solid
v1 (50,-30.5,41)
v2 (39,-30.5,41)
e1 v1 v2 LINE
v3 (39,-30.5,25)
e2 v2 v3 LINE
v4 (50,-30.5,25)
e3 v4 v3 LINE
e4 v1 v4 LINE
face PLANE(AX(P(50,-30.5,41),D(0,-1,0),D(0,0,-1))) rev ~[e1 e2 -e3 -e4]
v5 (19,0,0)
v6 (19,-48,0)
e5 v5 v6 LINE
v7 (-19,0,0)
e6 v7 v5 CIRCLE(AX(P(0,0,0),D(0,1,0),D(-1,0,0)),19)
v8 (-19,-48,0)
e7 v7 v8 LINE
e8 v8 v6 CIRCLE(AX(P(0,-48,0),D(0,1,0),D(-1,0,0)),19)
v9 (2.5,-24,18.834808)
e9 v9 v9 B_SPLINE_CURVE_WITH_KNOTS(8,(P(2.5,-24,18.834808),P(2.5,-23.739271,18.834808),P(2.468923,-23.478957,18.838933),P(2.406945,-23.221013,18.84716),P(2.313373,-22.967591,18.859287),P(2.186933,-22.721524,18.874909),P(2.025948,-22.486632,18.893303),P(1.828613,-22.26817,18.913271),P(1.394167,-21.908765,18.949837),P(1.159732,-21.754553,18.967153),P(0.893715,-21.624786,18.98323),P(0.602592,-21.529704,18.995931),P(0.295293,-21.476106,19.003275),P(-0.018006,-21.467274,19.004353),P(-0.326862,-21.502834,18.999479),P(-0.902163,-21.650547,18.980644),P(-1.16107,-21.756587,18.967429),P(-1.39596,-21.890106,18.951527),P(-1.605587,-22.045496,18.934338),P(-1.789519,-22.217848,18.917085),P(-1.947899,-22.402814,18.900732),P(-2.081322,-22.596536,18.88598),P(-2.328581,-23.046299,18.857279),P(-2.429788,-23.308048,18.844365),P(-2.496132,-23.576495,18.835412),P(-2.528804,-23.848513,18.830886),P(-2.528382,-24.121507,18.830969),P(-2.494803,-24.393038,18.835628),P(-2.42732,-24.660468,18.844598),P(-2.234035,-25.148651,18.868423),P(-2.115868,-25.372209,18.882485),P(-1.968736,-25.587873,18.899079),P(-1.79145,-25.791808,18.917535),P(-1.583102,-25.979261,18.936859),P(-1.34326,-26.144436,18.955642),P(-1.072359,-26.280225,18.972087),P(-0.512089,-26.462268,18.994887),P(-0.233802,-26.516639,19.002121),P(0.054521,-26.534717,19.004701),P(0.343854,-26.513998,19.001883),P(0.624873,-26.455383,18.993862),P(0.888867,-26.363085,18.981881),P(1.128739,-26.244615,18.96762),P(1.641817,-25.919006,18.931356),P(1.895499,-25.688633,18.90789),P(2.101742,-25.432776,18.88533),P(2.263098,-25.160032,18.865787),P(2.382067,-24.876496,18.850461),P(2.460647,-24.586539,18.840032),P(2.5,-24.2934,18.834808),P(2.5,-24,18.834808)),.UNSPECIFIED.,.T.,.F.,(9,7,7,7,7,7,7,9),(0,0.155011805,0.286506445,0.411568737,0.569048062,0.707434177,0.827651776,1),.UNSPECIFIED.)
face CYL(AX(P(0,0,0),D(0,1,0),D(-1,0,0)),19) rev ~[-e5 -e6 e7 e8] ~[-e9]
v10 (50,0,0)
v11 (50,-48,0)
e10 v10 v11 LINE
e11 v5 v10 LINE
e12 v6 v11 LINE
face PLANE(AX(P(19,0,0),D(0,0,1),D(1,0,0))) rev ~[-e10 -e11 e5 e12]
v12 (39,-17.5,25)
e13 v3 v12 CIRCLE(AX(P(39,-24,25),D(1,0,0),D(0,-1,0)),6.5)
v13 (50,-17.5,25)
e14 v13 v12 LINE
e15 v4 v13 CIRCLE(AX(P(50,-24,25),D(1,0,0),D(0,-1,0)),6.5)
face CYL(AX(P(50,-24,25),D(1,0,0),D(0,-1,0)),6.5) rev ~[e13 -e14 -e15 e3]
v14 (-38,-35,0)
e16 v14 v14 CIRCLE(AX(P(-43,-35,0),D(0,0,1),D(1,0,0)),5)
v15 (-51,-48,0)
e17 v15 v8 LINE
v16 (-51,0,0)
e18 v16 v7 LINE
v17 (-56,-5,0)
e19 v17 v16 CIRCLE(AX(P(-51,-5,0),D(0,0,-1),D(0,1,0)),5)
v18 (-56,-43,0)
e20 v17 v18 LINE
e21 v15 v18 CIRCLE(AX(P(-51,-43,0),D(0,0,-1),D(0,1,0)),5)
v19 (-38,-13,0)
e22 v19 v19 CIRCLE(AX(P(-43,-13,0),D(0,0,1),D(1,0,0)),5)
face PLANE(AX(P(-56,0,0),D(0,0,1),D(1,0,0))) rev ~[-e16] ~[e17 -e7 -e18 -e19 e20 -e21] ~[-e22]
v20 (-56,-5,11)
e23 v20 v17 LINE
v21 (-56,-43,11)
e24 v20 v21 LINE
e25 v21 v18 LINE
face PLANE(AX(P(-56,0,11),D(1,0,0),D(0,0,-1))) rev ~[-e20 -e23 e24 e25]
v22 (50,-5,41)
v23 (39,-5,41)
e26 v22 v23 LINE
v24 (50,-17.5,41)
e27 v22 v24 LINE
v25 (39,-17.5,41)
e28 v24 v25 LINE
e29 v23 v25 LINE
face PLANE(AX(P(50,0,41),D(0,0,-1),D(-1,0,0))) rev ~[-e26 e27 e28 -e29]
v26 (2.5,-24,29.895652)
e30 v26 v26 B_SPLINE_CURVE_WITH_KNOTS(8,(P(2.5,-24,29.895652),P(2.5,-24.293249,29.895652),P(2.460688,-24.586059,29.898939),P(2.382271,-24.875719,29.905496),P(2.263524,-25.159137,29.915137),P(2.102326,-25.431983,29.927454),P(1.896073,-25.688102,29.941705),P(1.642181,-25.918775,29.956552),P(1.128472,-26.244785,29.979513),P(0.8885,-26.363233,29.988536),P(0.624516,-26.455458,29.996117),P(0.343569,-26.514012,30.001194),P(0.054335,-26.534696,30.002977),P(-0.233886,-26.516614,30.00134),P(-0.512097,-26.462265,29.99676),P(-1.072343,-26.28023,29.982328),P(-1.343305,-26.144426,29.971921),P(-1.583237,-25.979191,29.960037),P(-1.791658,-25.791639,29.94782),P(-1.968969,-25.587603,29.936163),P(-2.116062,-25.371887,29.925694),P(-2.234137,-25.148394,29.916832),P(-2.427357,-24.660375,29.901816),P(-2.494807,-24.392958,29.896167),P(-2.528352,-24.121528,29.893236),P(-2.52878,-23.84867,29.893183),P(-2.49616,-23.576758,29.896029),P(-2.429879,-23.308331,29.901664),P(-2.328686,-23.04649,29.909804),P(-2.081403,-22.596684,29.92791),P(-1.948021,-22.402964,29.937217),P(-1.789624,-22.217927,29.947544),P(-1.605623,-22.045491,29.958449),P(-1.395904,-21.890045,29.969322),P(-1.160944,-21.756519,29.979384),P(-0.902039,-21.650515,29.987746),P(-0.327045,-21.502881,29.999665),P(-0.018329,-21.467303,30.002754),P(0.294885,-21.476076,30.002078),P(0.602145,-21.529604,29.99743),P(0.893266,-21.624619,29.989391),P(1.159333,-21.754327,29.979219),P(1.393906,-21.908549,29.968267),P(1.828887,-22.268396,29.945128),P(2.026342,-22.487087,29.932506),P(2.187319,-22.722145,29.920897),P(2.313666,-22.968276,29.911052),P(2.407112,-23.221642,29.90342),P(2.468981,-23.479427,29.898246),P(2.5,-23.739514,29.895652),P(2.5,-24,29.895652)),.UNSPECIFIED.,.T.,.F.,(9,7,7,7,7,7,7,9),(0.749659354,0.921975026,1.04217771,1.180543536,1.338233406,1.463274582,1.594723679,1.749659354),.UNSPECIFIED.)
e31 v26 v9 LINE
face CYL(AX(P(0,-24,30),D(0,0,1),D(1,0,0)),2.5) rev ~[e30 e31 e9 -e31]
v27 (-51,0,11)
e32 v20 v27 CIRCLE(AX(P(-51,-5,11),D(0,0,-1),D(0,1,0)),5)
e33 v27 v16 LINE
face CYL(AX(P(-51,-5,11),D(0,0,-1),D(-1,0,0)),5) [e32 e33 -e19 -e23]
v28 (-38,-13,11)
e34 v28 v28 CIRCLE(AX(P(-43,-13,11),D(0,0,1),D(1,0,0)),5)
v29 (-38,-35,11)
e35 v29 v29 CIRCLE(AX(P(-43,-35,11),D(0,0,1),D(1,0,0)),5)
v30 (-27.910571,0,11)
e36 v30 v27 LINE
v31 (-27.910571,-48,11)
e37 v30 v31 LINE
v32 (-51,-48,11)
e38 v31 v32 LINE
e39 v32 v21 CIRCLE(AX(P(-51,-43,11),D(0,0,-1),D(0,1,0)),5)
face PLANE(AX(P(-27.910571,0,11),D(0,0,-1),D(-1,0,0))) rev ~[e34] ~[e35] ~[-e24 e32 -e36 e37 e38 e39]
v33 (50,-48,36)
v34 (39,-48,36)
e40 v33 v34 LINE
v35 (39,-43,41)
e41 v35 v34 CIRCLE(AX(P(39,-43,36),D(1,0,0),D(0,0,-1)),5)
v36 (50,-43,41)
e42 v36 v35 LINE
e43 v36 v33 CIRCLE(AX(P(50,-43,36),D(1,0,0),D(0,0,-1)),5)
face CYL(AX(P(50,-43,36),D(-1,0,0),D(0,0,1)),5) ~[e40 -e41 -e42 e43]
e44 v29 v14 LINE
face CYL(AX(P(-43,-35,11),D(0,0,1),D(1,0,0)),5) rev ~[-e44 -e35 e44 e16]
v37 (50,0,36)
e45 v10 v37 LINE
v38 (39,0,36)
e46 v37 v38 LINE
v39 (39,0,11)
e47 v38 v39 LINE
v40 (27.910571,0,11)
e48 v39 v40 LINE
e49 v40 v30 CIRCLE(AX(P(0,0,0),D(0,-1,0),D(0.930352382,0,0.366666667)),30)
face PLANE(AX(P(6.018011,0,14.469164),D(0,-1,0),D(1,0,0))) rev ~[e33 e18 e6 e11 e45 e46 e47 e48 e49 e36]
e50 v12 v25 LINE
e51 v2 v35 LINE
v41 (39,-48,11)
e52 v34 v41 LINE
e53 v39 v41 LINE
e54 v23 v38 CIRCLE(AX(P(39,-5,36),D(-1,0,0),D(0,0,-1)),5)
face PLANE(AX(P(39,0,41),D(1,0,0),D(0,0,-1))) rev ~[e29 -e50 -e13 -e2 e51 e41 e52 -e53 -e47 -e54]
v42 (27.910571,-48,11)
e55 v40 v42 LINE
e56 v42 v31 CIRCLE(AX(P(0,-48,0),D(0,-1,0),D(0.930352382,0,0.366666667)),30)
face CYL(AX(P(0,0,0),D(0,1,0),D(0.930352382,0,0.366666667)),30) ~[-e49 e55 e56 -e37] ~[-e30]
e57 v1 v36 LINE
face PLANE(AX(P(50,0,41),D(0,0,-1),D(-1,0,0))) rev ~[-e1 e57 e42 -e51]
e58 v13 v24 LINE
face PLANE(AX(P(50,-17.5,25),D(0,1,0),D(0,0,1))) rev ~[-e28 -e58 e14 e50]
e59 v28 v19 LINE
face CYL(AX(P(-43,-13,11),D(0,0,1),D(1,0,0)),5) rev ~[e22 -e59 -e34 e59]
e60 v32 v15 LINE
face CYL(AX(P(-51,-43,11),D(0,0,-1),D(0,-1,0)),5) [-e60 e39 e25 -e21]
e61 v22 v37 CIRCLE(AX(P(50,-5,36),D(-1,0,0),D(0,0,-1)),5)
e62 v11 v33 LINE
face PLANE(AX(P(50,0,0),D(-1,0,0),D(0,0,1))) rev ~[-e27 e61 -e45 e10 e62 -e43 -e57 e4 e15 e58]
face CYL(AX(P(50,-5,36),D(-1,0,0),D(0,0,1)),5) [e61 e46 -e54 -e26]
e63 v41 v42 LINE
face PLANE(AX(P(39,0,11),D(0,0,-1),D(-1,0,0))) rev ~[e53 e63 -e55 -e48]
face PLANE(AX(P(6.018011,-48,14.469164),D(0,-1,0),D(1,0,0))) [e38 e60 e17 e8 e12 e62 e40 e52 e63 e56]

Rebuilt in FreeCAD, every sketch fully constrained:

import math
import FreeCAD as App
import Part
import Sketcher
from FreeCAD import Vector
Q = App.Units.Quantity


def edges_at(feature, points):
    """Names of the edges that pass closest to the given points."""
    edges = feature.Shape.Edges
    near = lambda p: min(range(len(edges)), key=lambda i: edges[i].distToShape(Part.Vertex(*p))[0])
    return sorted({f"Edge{near(p) + 1}" for p in points})

doc = App.newDocument("Part")
body = doc.addObject("PartDesign::Body", "Body")

sketch1 = doc.addObject("Sketcher::SketchObject", "Sketch")
body.addObject(sketch1)
sketch1.AttachmentSupport = (doc.XZ_Plane, [""])
sketch1.MapMode = "FlatFace"
sketch1.addGeometry([
    Part.ArcOfCircle(Part.Circle(Vector(0, 0, 0), Vector(0, 0, 1), 19), math.radians(0), math.radians(180)),
    Part.LineSegment(Vector(19, 0, 0), Vector(50, 0, 0)),
    Part.LineSegment(Vector(50, 0, 0), Vector(50, 41, 0)),
    Part.LineSegment(Vector(50, 41, 0), Vector(39, 41, 0)),
    Part.LineSegment(Vector(39, 41, 0), Vector(39, 11, 0)),
    Part.LineSegment(Vector(39, 11, 0), Vector(27.910571, 11, 0)),
    Part.ArcOfCircle(Part.Circle(Vector(0, 0, 0), Vector(0, 0, 1), 30), math.radians(21.510188), math.radians(158.489812)),
    Part.LineSegment(Vector(-27.910571, 11, 0), Vector(-56, 11, 0)),
    Part.LineSegment(Vector(-56, 11, 0), Vector(-56, 0, 0)),
    Part.LineSegment(Vector(-56, 0, 0), Vector(-19, 0, 0)),
], False)
sketch1.addConstraint([
    Sketcher.Constraint("Coincident", 0, 1, 1, 1),
    Sketcher.Constraint("Coincident", 1, 2, 2, 1),
    Sketcher.Constraint("Coincident", 2, 2, 3, 1),
    Sketcher.Constraint("Coincident", 3, 2, 4, 1),
    Sketcher.Constraint("Coincident", 4, 2, 5, 1),
    Sketcher.Constraint("Coincident", 5, 2, 6, 1),
    Sketcher.Constraint("Coincident", 6, 2, 7, 1),
    Sketcher.Constraint("Coincident", 7, 2, 8, 1),
    Sketcher.Constraint("Coincident", 8, 2, 9, 1),
    Sketcher.Constraint("Coincident", 9, 2, 0, 2),
    Sketcher.Constraint("Horizontal", 1),
    Sketcher.Constraint("Vertical", 2),
    Sketcher.Constraint("Horizontal", 3),
    Sketcher.Constraint("Vertical", 4),
    Sketcher.Constraint("Horizontal", 5),
    Sketcher.Constraint("Horizontal", 7),
    Sketcher.Constraint("Vertical", 8),
    Sketcher.Constraint("Horizontal", 9),
    Sketcher.Constraint("Coincident", 0, 3, -1, 1),
    Sketcher.Constraint("Coincident", 6, 3, -1, 1),
    Sketcher.Constraint("PointOnObject", 0, 1, -1),
    Sketcher.Constraint("PointOnObject", 8, 2, -1),
    Sketcher.Constraint("Horizontal", 5, 2, 6, 2),
    Sketcher.Constraint("Equal", 3, 8),
    Sketcher.Constraint("Radius", 0, Q("19 mm")),
    Sketcher.Constraint("Radius", 6, Q("30 mm")),
    Sketcher.Constraint("DistanceX", 1, 1, 1, 2, Q("31 mm")),
    Sketcher.Constraint("DistanceX", 3, 2, 3, 1, Q("11 mm")),
    Sketcher.Constraint("DistanceX", 9, 1, 9, 2, Q("37 mm")),
    Sketcher.Constraint("DistanceY", 2, 1, 2, 2, Q("41 mm")),
])
pad1 = doc.addObject("PartDesign::Pad", "Pad")
body.addObject(pad1)
pad1.Profile = sketch1
pad1.Length = 48
doc.recompute()

fillet = doc.addObject("PartDesign::Fillet", "Fillet")
body.addObject(fillet)
fillet.Base = (pad1, edges_at(pad1, [(44.5, -48, 41)]))
fillet.Radius = 5
doc.recompute()

fillet2 = doc.addObject("PartDesign::Fillet", "Fillet001")
body.addObject(fillet2)
fillet2.Base = (fillet, edges_at(fillet, [(44.5, 0, 41)]))
fillet2.Radius = 5

sketch2 = doc.addObject("Sketcher::SketchObject", "Sketch001")
body.addObject(sketch2)
sketch2.AttachmentSupport = (doc.YZ_Plane, [""])
sketch2.MapMode = "FlatFace"
sketch2.AttachmentOffset = App.Placement(Vector(0, 0, 50), App.Rotation())
sketch2.addGeometry([
    Part.LineSegment(Vector(-17.5, 25, 0), Vector(-17.5, 41, 0)),
    Part.LineSegment(Vector(-17.5, 41, 0), Vector(-30.5, 41, 0)),
    Part.LineSegment(Vector(-30.5, 41, 0), Vector(-30.5, 25, 0)),
    Part.ArcOfCircle(Part.Circle(Vector(-24, 25, 0), Vector(0, 0, 1), 6.5), math.radians(180), math.radians(360)),
], False)
sketch2.addConstraint([
    Sketcher.Constraint("Coincident", 0, 2, 1, 1),
    Sketcher.Constraint("Coincident", 1, 2, 2, 1),
    Sketcher.Constraint("Tangent", 2, 2, 3, 1),
    Sketcher.Constraint("Tangent", 3, 2, 0, 1),
    Sketcher.Constraint("Vertical", 0),
    Sketcher.Constraint("Horizontal", 1),
    Sketcher.Constraint("Vertical", 2),
    Sketcher.Constraint("Radius", 3, Q("6.5 mm")),
    Sketcher.Constraint("DistanceY", 0, 1, 0, 2, Q("16 mm")),
    Sketcher.Constraint("DistanceX", 3, 3, -1, 1, Q("24 mm")),
    Sketcher.Constraint("DistanceY", -1, 1, 3, 3, Q("25 mm")),
])
pocket1 = doc.addObject("PartDesign::Pocket", "Pocket")
body.addObject(pocket1)
pocket1.Profile = sketch2
pocket1.Length = 11
doc.recompute()

fillet3 = doc.addObject("PartDesign::Fillet", "Fillet002")
body.addObject(fillet3)
fillet3.Base = (pocket1, edges_at(pocket1, [(-56, -48, 5.5)]))
fillet3.Radius = 5
doc.recompute()

fillet4 = doc.addObject("PartDesign::Fillet", "Fillet003")
body.addObject(fillet4)
fillet4.Base = (fillet3, edges_at(fillet3, [(-56, 0, 5.5)]))
fillet4.Radius = 5

sketch3 = doc.addObject("Sketcher::SketchObject", "Sketch002")
body.addObject(sketch3)
sketch3.AttachmentSupport = (doc.XY_Plane, [""])
sketch3.MapMode = "FlatFace"
sketch3.AttachmentOffset = App.Placement(Vector(0, 0, 11), App.Rotation())
sketch3.addGeometry([
    Part.Circle(Vector(-43, -13, 0), Vector(0, 0, 1), 5),
    Part.Circle(Vector(-43, -35, 0), Vector(0, 0, 1), 5),
], False)
sketch3.addConstraint([
    Sketcher.Constraint("Equal", 0, 1),
    Sketcher.Constraint("Vertical", 0, 3, 1, 3),
    Sketcher.Constraint("Diameter", 0, Q("10 mm")),
    Sketcher.Constraint("DistanceX", 0, 3, -1, 1, Q("43 mm")),
    Sketcher.Constraint("DistanceY", 0, 3, -1, 1, Q("13 mm")),
    Sketcher.Constraint("DistanceY", 1, 3, -1, 1, Q("35 mm")),
])
pocket2 = doc.addObject("PartDesign::Pocket", "Pocket001")
body.addObject(pocket2)
pocket2.Profile = sketch3
pocket2.Type = "ThroughAll"

sketch4 = doc.addObject("Sketcher::SketchObject", "Sketch003")
body.addObject(sketch4)
sketch4.AttachmentSupport = (doc.XY_Plane, [""])
sketch4.MapMode = "FlatFace"
sketch4.AttachmentOffset = App.Placement(Vector(0, 0, 30), App.Rotation())
sketch4.addGeometry(Part.Circle(Vector(0, -24, 0), Vector(0, 0, 1), 2.5), False)
sketch4.addConstraint([
    Sketcher.Constraint("PointOnObject", 0, 3, -2),
    Sketcher.Constraint("Diameter", 0, Q("5 mm")),
    Sketcher.Constraint("DistanceY", 0, 3, -1, 1, Q("24 mm")),
])
pocket3 = doc.addObject("PartDesign::Pocket", "Pocket002")
body.addObject(pocket3)
pocket3.Profile = sketch4
pocket3.Type = "ThroughAll"

doc.recompute()
